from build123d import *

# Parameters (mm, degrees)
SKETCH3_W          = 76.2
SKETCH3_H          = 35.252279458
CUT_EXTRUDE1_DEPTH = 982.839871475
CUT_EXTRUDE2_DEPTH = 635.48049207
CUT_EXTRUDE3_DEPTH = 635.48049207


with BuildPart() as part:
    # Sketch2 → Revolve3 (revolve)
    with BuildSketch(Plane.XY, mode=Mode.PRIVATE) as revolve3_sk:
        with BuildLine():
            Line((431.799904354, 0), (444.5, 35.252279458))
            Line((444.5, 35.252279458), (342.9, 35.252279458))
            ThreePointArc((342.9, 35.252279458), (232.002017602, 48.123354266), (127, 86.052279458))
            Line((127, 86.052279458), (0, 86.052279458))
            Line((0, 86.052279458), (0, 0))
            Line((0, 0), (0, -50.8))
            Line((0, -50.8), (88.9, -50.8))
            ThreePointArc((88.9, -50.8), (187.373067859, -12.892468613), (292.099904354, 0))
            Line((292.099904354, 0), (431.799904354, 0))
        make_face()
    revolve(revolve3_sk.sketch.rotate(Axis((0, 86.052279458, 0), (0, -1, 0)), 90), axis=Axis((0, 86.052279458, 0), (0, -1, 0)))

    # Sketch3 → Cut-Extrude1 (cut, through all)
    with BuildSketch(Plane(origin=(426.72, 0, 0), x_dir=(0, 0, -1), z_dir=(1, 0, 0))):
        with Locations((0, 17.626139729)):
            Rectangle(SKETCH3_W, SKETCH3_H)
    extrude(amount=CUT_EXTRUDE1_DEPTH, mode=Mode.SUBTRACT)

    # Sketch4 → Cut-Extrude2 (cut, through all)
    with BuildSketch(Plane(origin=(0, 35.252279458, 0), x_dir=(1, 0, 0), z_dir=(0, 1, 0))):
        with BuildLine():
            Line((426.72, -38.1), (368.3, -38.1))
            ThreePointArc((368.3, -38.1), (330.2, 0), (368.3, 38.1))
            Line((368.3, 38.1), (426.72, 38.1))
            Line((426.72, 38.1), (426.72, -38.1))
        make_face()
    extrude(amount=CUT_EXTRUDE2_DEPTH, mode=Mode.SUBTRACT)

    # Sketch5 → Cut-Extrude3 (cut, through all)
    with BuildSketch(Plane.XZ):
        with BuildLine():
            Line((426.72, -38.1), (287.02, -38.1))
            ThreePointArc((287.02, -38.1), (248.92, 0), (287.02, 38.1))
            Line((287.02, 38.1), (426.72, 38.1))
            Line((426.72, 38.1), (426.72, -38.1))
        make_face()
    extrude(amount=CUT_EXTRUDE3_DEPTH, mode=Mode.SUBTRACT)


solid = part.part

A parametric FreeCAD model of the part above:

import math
import FreeCAD as App
import Part
import Sketcher
Q = App.Units.Quantity

doc = App.newDocument("Part")
params = doc.addObject("Spreadsheet::Sheet", "Params")
for row, (alias, value) in enumerate([
    ("sketch1_width", "4 in"),
    ("sketch1_width2", "5 in"),
    ("sketch1_width3", "3.5 in"),
    ("sketch1_width4", "5.5 in"),
    ("sketch1_radius", "19.0625 in"),
    ("revolution_angle", "360 deg"),
    ("sketch2_height", "3 in"),
    ("sketch3_radius", "1.5 in"),
    ("sketch3_width", "2.3 in"),
    ("sketch4_radius", "1.5 in"),
    ("sketch4_width", "5.5 in"),
], start=1):
    params.set(f"A{row}", alias)
    params.set(f"B{row}", "=" + value)
    params.setAlias(f"B{row}", alias)

body = doc.addObject("PartDesign::Body", "Body")

sketch1 = body.newObject("Sketcher::SketchObject", "Sketch")
sketch1.AttachmentSupport = (doc.getObject("XY_Plane"), [""])
sketch1.MapMode = "FlatFace"
sketch1.addGeometry(Part.LineSegment(App.Vector(432, 0, 0), App.Vector(444, 35, 0)), False)
sketch1.addGeometry(Part.LineSegment(App.Vector(444, 35, 0), App.Vector(343, 35, 0)), False)
sketch1.addGeometry(Part.ArcOfCircle(Part.Circle(App.Vector(343, 519, 0), App.Vector(0, 0, 1), 484), math.radians(-116), math.radians(-90)), False)
sketch1.addGeometry(Part.LineSegment(App.Vector(127, 86, 0), App.Vector(0, 86, 0)), False)
sketch1.addGeometry(Part.LineSegment(App.Vector(0, 86, 0), App.Vector(0, -51, 0)), False)
sketch1.addGeometry(Part.LineSegment(App.Vector(0, -51, 0), App.Vector(89, -51, 0)), False)
sketch1.addGeometry(Part.ArcOfCircle(Part.Circle(App.Vector(292, -432, 0), App.Vector(0, 0, 1), 432), math.radians(90), math.radians(118)), False)
sketch1.addGeometry(Part.LineSegment(App.Vector(292, 0, 0), App.Vector(432, 0, 0)), False)
sketch1.addConstraint(Sketcher.Constraint("Coincident", 0, 2, 1, 1))
sketch1.addConstraint(Sketcher.Constraint("Tangent", 1, 2, 2, 2))
sketch1.addConstraint(Sketcher.Constraint("Coincident", 2, 1, 3, 1))
sketch1.addConstraint(Sketcher.Constraint("Coincident", 3, 2, 4, 1))
sketch1.addConstraint(Sketcher.Constraint("Coincident", 4, 2, 5, 1))
sketch1.addConstraint(Sketcher.Constraint("Coincident", 5, 2, 6, 2))
sketch1.addConstraint(Sketcher.Constraint("Tangent", 6, 1, 7, 1))
sketch1.addConstraint(Sketcher.Constraint("Coincident", 7, 2, 0, 1))
sketch1.addConstraint(Sketcher.Constraint("Horizontal", 1))
sketch1.addConstraint(Sketcher.Constraint("Horizontal", 3))
sketch1.addConstraint(Sketcher.Constraint("Vertical", 4))
sketch1.addConstraint(Sketcher.Constraint("Horizontal", 5))
sketch1.addConstraint(Sketcher.Constraint("Horizontal", 7))
sketch1.addConstraint(Sketcher.Constraint("PointOnObject", 3, 2, -2))
sketch1.addConstraint(Sketcher.Constraint("PointOnObject", 6, 1, -1))
sketch1.addConstraint(Sketcher.Constraint("DistanceX", 1, 2, 1, 1, Q("4 in")))
sketch1.addConstraint(Sketcher.Constraint("DistanceX", 3, 2, 3, 1, Q("5 in")))
sketch1.addConstraint(Sketcher.Constraint("DistanceX", 5, 1, 5, 2, Q("3.5 in")))
sketch1.addConstraint(Sketcher.Constraint("DistanceX", 7, 1, 7, 2, Q("5.5 in")))
sketch1.addConstraint(Sketcher.Constraint("DistanceY", 4, 2, -1, 1, Q("2 in")))
sketch1.addConstraint(Sketcher.Constraint("Radius", 2, Q("19.0625 in")))
sketch1.addConstraint(Sketcher.Constraint("DistanceY", 1, 2, 3, 2, Q("2 in")))
sketch1.addConstraint(Sketcher.Constraint("Radius", 6, 431.799617))
sketch1.addConstraint(Sketcher.Constraint("DistanceY", 4, 2, 4, 1, 136.852279))
sketch1.setExpression("Constraints[15]", "Params.sketch1_width")
sketch1.setExpression("Constraints[16]", "Params.sketch1_width2")
sketch1.setExpression("Constraints[17]", "Params.sketch1_width3")
sketch1.setExpression("Constraints[18]", "Params.sketch1_width4")
sketch1.setExpression("Constraints[20]", "Params.sketch1_radius")
revolution = body.newObject("PartDesign::Revolution", "Revolution")
revolution.Profile = sketch1
revolution.ReferenceAxis = (sketch1, ["V_Axis"])
revolution.setExpression("Angle", "Params.revolution_angle")

sketch2 = body.newObject("Sketcher::SketchObject", "Sketch001")
sketch2.AttachmentSupport = (doc.getObject("YZ_Plane"), [""])
sketch2.MapMode = "FlatFace"
sketch2.AttachmentOffset = App.Placement(App.Vector(0, 0, 16.8 * 25.4), App.Rotation())
sketch2.addGeometry(Part.LineSegment(App.Vector(35, 38, 0), App.Vector(0, 38, 0)), False)
sketch2.addGeometry(Part.LineSegment(App.Vector(0, 38, 0), App.Vector(0, -38, 0)), False)
sketch2.addGeometry(Part.LineSegment(App.Vector(0, -38, 0), App.Vector(35, -38, 0)), False)
sketch2.addGeometry(Part.LineSegment(App.Vector(35, -38, 0), App.Vector(35, 38, 0)), False)
sketch2.addConstraint(Sketcher.Constraint("Coincident", 0, 2, 1, 1))
sketch2.addConstraint(Sketcher.Constraint("Coincident", 1, 2, 2, 1))
sketch2.addConstraint(Sketcher.Constraint("Coincident", 2, 2, 3, 1))
sketch2.addConstraint(Sketcher.Constraint("Coincident", 3, 2, 0, 1))
sketch2.addConstraint(Sketcher.Constraint("Horizontal", 0))
sketch2.addConstraint(Sketcher.Constraint("Vertical", 1))
sketch2.addConstraint(Sketcher.Constraint("Horizontal", 2))
sketch2.addConstraint(Sketcher.Constraint("Vertical", 3))
sketch2.addConstraint(Sketcher.Constraint("Symmetric", 0, 2, 1, 2, -1, 1))
sketch2.addConstraint(Sketcher.Constraint("DistanceY", 1, 2, 1, 1, Q("3 in")))
sketch2.addConstraint(Sketcher.Constraint("DistanceX", 0, 2, 0, 1, 35.252279))
sketch2.setExpression("Constraints[9]", "Params.sketch2_height")
pocket1 = body.newObject("PartDesign::Pocket", "Pocket")
pocket1.Profile = sketch2
pocket1.Type = "ThroughAll"
pocket1.Reversed = True

sketch3 = body.newObject("Sketcher::SketchObject", "Sketch002")
sketch3.AttachmentSupport = (doc.getObject("XZ_Plane"), [""])
sketch3.MapMode = "FlatFace"
sketch3.AttachmentOffset = App.Placement(App.Vector(0, 0, -35.252279), App.Rotation())
sketch3.addGeometry(Part.LineSegment(App.Vector(368, 38, 0), App.Vector(427, 38, 0)), False)
sketch3.addGeometry(Part.LineSegment(App.Vector(427, 38, 0), App.Vector(427, -38, 0)), False)
sketch3.addGeometry(Part.LineSegment(App.Vector(427, -38, 0), App.Vector(368, -38, 0)), False)
sketch3.addGeometry(Part.ArcOfCircle(Part.Circle(App.Vector(368, 0, 0), App.Vector(0, 0, 1), 38), math.radians(90), math.radians(270)), False)
sketch3.addConstraint(Sketcher.Constraint("Coincident", 0, 2, 1, 1))
sketch3.addConstraint(Sketcher.Constraint("Coincident", 1, 2, 2, 1))
sketch3.addConstraint(Sketcher.Constraint("Tangent", 2, 2, 3, 2))
sketch3.addConstraint(Sketcher.Constraint("Tangent", 3, 1, 0, 1))
sketch3.addConstraint(Sketcher.Constraint("Horizontal", 0))
sketch3.addConstraint(Sketcher.Constraint("Vertical", 1))
sketch3.addConstraint(Sketcher.Constraint("Horizontal", 2))
sketch3.addConstraint(Sketcher.Constraint("PointOnObject", 3, 3, -1))
sketch3.addConstraint(Sketcher.Constraint("Radius", 3, Q("1.5 in")))
sketch3.addConstraint(Sketcher.Constraint("DistanceX", 0, 1, 0, 2, Q("2.3 in")))
sketch3.addConstraint(Sketcher.Constraint("DistanceX", -1, 1, 3, 3, Q("14.5 in")))
sketch3.setExpression("Constraints[8]", "Params.sketch3_radius")
sketch3.setExpression("Constraints[9]", "Params.sketch3_width")
pocket2 = body.newObject("PartDesign::Pocket", "Pocket001")
pocket2.Profile = sketch3
pocket2.Type = "ThroughAll"

sketch4 = body.newObject("Sketcher::SketchObject", "Sketch003")
sketch4.AttachmentSupport = (doc.getObject("XZ_Plane"), [""])
sketch4.MapMode = "FlatFace"
sketch4.addGeometry(Part.LineSegment(App.Vector(287, -38, 0), App.Vector(427, -38, 0)), False)
sketch4.addGeometry(Part.LineSegment(App.Vector(427, -38, 0), App.Vector(427, 38, 0)), False)
sketch4.addGeometry(Part.LineSegment(App.Vector(427, 38, 0), App.Vector(287, 38, 0)), False)
sketch4.addGeometry(Part.ArcOfCircle(Part.Circle(App.Vector(287, 0, 0), App.Vector(0, 0, 1), 38), math.radians(90), math.radians(270)), False)
sketch4.addConstraint(Sketcher.Constraint("Coincident", 0, 2, 1, 1))
sketch4.addConstraint(Sketcher.Constraint("Coincident", 1, 2, 2, 1))
sketch4.addConstraint(Sketcher.Constraint("Tangent", 2, 2, 3, 1))
sketch4.addConstraint(Sketcher.Constraint("Tangent", 3, 2, 0, 1))
sketch4.addConstraint(Sketcher.Constraint("Horizontal", 0))
sketch4.addConstraint(Sketcher.Constraint("Vertical", 1))
sketch4.addConstraint(Sketcher.Constraint("Horizontal", 2))
sketch4.addConstraint(Sketcher.Constraint("PointOnObject", 3, 3, -1))
sketch4.addConstraint(Sketcher.Constraint("Radius", 3, Q("1.5 in")))
sketch4.addConstraint(Sketcher.Constraint("DistanceX", 0, 1, 0, 2, Q("5.5 in")))
sketch4.addConstraint(Sketcher.Constraint("DistanceX", -1, 1, 3, 3, Q("11.3 in")))
sketch4.setExpression("Constraints[8]", "Params.sketch4_radius")
sketch4.setExpression("Constraints[9]", "Params.sketch4_width")
pocket3 = body.newObject("PartDesign::Pocket", "Pocket002")
pocket3.Profile = sketch4
pocket3.Type = "ThroughAll"
pocket3.Reversed = True

doc.recompute()
